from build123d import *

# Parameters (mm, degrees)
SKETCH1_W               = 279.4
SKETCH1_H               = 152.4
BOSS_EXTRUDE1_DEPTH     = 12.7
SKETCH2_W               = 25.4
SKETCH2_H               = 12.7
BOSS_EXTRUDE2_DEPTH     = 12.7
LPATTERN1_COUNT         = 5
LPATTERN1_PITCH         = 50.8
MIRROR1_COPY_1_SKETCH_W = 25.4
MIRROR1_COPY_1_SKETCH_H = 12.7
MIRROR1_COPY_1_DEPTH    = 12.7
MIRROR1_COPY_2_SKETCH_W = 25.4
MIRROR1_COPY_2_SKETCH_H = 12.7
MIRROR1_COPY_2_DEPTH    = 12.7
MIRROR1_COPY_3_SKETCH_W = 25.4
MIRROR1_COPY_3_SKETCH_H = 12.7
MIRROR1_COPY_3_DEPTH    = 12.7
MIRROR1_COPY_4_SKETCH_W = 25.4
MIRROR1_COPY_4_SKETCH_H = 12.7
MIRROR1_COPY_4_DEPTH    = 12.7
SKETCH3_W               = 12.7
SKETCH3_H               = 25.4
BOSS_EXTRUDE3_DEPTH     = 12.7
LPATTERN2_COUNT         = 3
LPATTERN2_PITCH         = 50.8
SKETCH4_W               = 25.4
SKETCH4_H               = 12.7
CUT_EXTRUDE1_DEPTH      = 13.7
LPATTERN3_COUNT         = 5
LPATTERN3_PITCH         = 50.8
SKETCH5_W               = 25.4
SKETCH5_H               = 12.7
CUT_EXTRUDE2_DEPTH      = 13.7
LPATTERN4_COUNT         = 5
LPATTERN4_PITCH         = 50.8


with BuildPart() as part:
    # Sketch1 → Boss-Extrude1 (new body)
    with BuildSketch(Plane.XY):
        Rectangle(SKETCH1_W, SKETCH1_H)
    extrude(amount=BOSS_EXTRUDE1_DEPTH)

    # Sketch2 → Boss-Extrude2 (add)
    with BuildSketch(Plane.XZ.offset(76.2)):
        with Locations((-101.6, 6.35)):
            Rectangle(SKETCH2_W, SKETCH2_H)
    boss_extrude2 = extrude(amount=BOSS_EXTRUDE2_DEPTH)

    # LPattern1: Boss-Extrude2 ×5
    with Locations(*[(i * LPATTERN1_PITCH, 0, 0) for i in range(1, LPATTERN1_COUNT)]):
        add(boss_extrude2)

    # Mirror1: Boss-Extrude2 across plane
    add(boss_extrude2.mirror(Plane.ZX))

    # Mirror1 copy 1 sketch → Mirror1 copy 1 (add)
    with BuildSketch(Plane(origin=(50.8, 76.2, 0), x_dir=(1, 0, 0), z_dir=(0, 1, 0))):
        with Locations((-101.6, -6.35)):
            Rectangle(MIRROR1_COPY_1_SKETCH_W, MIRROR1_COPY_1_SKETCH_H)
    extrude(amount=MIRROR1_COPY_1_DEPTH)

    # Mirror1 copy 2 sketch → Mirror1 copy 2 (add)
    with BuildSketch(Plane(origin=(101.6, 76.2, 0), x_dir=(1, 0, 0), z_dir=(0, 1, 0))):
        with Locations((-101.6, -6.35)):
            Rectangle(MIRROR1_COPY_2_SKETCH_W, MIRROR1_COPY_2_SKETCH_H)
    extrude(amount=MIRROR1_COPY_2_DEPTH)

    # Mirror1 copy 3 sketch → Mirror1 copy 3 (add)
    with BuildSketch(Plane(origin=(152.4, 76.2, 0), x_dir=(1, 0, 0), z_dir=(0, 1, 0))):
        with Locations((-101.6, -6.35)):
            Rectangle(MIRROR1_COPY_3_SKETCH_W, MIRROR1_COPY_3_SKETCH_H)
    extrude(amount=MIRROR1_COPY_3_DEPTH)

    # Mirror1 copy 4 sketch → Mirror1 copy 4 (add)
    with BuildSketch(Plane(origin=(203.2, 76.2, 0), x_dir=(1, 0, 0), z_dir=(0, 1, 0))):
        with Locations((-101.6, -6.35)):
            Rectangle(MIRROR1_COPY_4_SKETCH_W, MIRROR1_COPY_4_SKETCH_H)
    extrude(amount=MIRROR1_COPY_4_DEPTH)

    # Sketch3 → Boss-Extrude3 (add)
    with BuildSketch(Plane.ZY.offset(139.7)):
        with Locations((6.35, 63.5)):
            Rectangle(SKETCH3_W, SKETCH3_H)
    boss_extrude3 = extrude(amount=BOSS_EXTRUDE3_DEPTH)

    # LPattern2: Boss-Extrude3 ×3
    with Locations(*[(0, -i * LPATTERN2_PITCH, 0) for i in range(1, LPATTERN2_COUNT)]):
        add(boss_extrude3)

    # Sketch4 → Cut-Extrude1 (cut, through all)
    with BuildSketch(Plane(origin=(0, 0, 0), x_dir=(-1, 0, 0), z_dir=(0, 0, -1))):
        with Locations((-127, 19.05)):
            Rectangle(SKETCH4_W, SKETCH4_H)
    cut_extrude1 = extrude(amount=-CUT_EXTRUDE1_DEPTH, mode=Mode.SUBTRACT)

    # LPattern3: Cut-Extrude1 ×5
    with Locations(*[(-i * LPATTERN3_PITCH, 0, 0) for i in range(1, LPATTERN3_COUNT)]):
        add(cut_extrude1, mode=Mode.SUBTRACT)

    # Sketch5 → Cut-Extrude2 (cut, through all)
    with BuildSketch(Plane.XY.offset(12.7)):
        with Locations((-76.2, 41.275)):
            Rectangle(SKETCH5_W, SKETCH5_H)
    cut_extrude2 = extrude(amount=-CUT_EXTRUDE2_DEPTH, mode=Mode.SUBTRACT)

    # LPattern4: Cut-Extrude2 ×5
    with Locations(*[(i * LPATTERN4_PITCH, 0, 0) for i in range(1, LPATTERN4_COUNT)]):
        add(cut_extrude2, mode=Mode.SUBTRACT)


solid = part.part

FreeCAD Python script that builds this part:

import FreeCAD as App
import Part
import Sketcher
Q = App.Units.Quantity

doc = App.newDocument("Part")
params = doc.addObject("Spreadsheet::Sheet", "Params")
for row, (alias, value) in enumerate([
    ("sketch1_width", "11 in"),
    ("sketch1_height", "6 in"),
    ("pad1_length", "0.5 in"),
    ("sketch2_width", "1 in"),
    ("sketch2_height", "0.5 in"),
    ("pad2_length", "0.5 in"),
    ("linearpattern_pitch", "2 in"),
    ("sketch3_width", "1 in"),
    ("sketch3_height", "0.5 in"),
    ("pad3_length", "0.5 in"),
    ("sketch4_width", "1 in"),
    ("sketch4_height", "0.5 in"),
    ("pad4_length", "0.5 in"),
    ("sketch5_width", "1 in"),
    ("sketch5_height", "0.5 in"),
    ("pad5_length", "0.5 in"),
    ("sketch6_width", "1 in"),
    ("sketch6_height", "0.5 in"),
    ("pad6_length", "0.5 in"),
    ("sketch7_width", "1 in"),
    ("sketch7_height", "0.5 in"),
    ("pad7_length", "0.5 in"),
    ("linearpattern2_pitch", "2 in"),
    ("sketch8_width", "1 in"),
    ("sketch8_height", "0.5 in"),
    ("linearpattern3_pitch", "2 in"),
    ("sketch9_width", "1 in"),
    ("sketch9_height", "0.5 in"),
    ("linearpattern4_pitch", "2 in"),
], start=1):
    params.set(f"A{row}", alias)
    params.set(f"B{row}", "=" + value)
    params.setAlias(f"B{row}", alias)

body = doc.addObject("PartDesign::Body", "Body")

# Sketch on XY plane
sketch1 = doc.addObject("Sketcher::SketchObject", "Sketch")
body.addObject(sketch1)
sketch1.AttachmentSupport = (doc.XY_Plane, [""])
sketch1.MapMode = "FlatFace"
sketch1.addGeometry(Part.LineSegment(App.Vector(-139.7, 76.2, 0), App.Vector(-139.7, -76.2, 0)), False)
sketch1.addGeometry(Part.LineSegment(App.Vector(-139.7, -76.2, 0), App.Vector(139.7, -76.2, 0)), False)
sketch1.addGeometry(Part.LineSegment(App.Vector(139.7, -76.2, 0), App.Vector(139.7, 76.2, 0)), False)
sketch1.addGeometry(Part.LineSegment(App.Vector(139.7, 76.2, 0), App.Vector(-139.7, 76.2, 0)), False)
sketch1.addConstraint(Sketcher.Constraint("Coincident", 0, 2, 1, 1))
sketch1.addConstraint(Sketcher.Constraint("Coincident", 1, 2, 2, 1))
sketch1.addConstraint(Sketcher.Constraint("Coincident", 2, 2, 3, 1))
sketch1.addConstraint(Sketcher.Constraint("Coincident", 3, 2, 0, 1))
sketch1.addConstraint(Sketcher.Constraint("Vertical", 0))
sketch1.addConstraint(Sketcher.Constraint("Horizontal", 1))
sketch1.addConstraint(Sketcher.Constraint("Vertical", 2))
sketch1.addConstraint(Sketcher.Constraint("Horizontal", 3))
sketch1.addConstraint(Sketcher.Constraint("Symmetric", 0, 2, 2, 2, -1, 1))
sketch1.addConstraint(Sketcher.Constraint("DistanceX", 1, 1, 1, 2, Q("11 in")))
sketch1.addConstraint(Sketcher.Constraint("DistanceY", 0, 2, 0, 1, Q("6 in")))
sketch1.setExpression("Constraints[9]", "Params.sketch1_width")
sketch1.setExpression("Constraints[10]", "Params.sketch1_height")
pad1 = doc.addObject("PartDesign::Pad", "Pad")
body.addObject(pad1)
pad1.Profile = sketch1
pad1.setExpression("Length", "Params.pad1_length")

# Sketch on XZ plane
sketch2 = doc.addObject("Sketcher::SketchObject", "Sketch001")
body.addObject(sketch2)
sketch2.AttachmentSupport = (doc.XZ_Plane, [""])
sketch2.MapMode = "FlatFace"
sketch2.AttachmentOffset = App.Placement(App.Vector(0, 0, 3 * 25.4), App.Rotation())
sketch2.addGeometry(Part.LineSegment(App.Vector(-114.3, 12.7, 0), App.Vector(-114.3, 0, 0)), False)
sketch2.addGeometry(Part.LineSegment(App.Vector(-114.3, 0, 0), App.Vector(-88.9, 0, 0)), False)
sketch2.addGeometry(Part.LineSegment(App.Vector(-88.9, 0, 0), App.Vector(-88.9, 12.7, 0)), False)
sketch2.addGeometry(Part.LineSegment(App.Vector(-88.9, 12.7, 0), App.Vector(-114.3, 12.7, 0)), False)
sketch2.addConstraint(Sketcher.Constraint("Coincident", 0, 2, 1, 1))
sketch2.addConstraint(Sketcher.Constraint("Coincident", 1, 2, 2, 1))
sketch2.addConstraint(Sketcher.Constraint("Coincident", 2, 2, 3, 1))
sketch2.addConstraint(Sketcher.Constraint("Coincident", 3, 2, 0, 1))
sketch2.addConstraint(Sketcher.Constraint("Vertical", 0))
sketch2.addConstraint(Sketcher.Constraint("Horizontal", 1))
sketch2.addConstraint(Sketcher.Constraint("Vertical", 2))
sketch2.addConstraint(Sketcher.Constraint("Horizontal", 3))
sketch2.addConstraint(Sketcher.Constraint("PointOnObject", 0, 2, -1))
sketch2.addConstraint(Sketcher.Constraint("DistanceX", 1, 1, 1, 2, Q("1 in")))
sketch2.addConstraint(Sketcher.Constraint("DistanceY", 0, 2, 0, 1, Q("0.5 in")))
sketch2.addConstraint(Sketcher.Constraint("DistanceX", 0, 2, -1, 1, Q("4.5 in")))
sketch2.setExpression("Constraints[9]", "Params.sketch2_width")
sketch2.setExpression("Constraints[10]", "Params.sketch2_height")
pad2 = doc.addObject("PartDesign::Pad", "Pad001")
body.addObject(pad2)
pad2.Profile = sketch2
pad2.setExpression("Length", "Params.pad2_length")
doc.recompute()

linearpattern = doc.addObject("PartDesign::LinearPattern", "LinearPattern")
body.addObject(linearpattern)
linearpattern.Originals = [pad2]
linearpattern.Direction = (doc.X_Axis, [""])
linearpattern.Mode = "offset"
linearpattern.setExpression("Offset", "Params.linearpattern_pitch")
linearpattern.Occurrences = 5
body.Tip = linearpattern
doc.recompute()

mirrored = doc.addObject("PartDesign::Mirrored", "Mirrored")
body.addObject(mirrored)
mirrored.Originals = [pad2]
mirrored.MirrorPlane = (doc.XZ_Plane, [""])
body.Tip = mirrored

# Sketch on XZ plane
sketch3 = doc.addObject("Sketcher::SketchObject", "Sketch002")
body.addObject(sketch3)
sketch3.AttachmentSupport = (doc.XZ_Plane, [""])
sketch3.MapMode = "FlatFace"
sketch3.AttachmentOffset = App.Placement(App.Vector(0, 0, -3 * 25.4), App.Rotation())
sketch3.addGeometry(Part.LineSegment(App.Vector(-63.5, 0, 0), App.Vector(-63.5, 12.7, 0)), False)
sketch3.addGeometry(Part.LineSegment(App.Vector(-63.5, 12.7, 0), App.Vector(-38.1, 12.7, 0)), False)
sketch3.addGeometry(Part.LineSegment(App.Vector(-38.1, 12.7, 0), App.Vector(-38.1, 0, 0)), False)
sketch3.addGeometry(Part.LineSegment(App.Vector(-38.1, 0, 0), App.Vector(-63.5, 0, 0)), False)
sketch3.addConstraint(Sketcher.Constraint("Coincident", 0, 2, 1, 1))
sketch3.addConstraint(Sketcher.Constraint("Coincident", 1, 2, 2, 1))
sketch3.addConstraint(Sketcher.Constraint("Coincident", 2, 2, 3, 1))
sketch3.addConstraint(Sketcher.Constraint("Coincident", 3, 2, 0, 1))
sketch3.addConstraint(Sketcher.Constraint("Vertical", 0))
sketch3.addConstraint(Sketcher.Constraint("Horizontal", 1))
sketch3.addConstraint(Sketcher.Constraint("Vertical", 2))
sketch3.addConstraint(Sketcher.Constraint("Horizontal", 3))
sketch3.addConstraint(Sketcher.Constraint("PointOnObject", 2, 2, -1))
sketch3.addConstraint(Sketcher.Constraint("DistanceX", 1, 1, 1, 2, Q("1 in")))
sketch3.addConstraint(Sketcher.Constraint("DistanceY", 0, 1, 0, 2, Q("0.5 in")))
sketch3.addConstraint(Sketcher.Constraint("DistanceX", 0, 2, -1, 1, Q("2.5 in")))
sketch3.setExpression("Constraints[9]", "Params.sketch3_width")
sketch3.setExpression("Constraints[10]", "Params.sketch3_height")
pad3 = doc.addObject("PartDesign::Pad", "Pad002")
body.addObject(pad3)
pad3.Profile = sketch3
pad3.setExpression("Length", "Params.pad3_length")
pad3.Reversed = True

# Sketch on XZ plane
sketch4 = doc.addObject("Sketcher::SketchObject", "Sketch003")
body.addObject(sketch4)
sketch4.AttachmentSupport = (doc.XZ_Plane, [""])
sketch4.MapMode = "FlatFace"
sketch4.AttachmentOffset = App.Placement(App.Vector(0, 0, -3 * 25.4), App.Rotation())
sketch4.addGeometry(Part.LineSegment(App.Vector(-12.7, 0, 0), App.Vector(-12.7, 12.7, 0)), False)
sketch4.addGeometry(Part.LineSegment(App.Vector(-12.7, 12.7, 0), App.Vector(12.7, 12.7, 0)), False)
sketch4.addGeometry(Part.LineSegment(App.Vector(12.7, 12.7, 0), App.Vector(12.7, 0, 0)), False)
sketch4.addGeometry(Part.LineSegment(App.Vector(12.7, 0, 0), App.Vector(-12.7, 0, 0)), False)
sketch4.addConstraint(Sketcher.Constraint("Coincident", 0, 2, 1, 1))
sketch4.addConstraint(Sketcher.Constraint("Coincident", 1, 2, 2, 1))
sketch4.addConstraint(Sketcher.Constraint("Coincident", 2, 2, 3, 1))
sketch4.addConstraint(Sketcher.Constraint("Coincident", 3, 2, 0, 1))
sketch4.addConstraint(Sketcher.Constraint("Vertical", 0))
sketch4.addConstraint(Sketcher.Constraint("Horizontal", 1))
sketch4.addConstraint(Sketcher.Constraint("Vertical", 2))
sketch4.addConstraint(Sketcher.Constraint("Horizontal", 3))
sketch4.addConstraint(Sketcher.Constraint("Symmetric", 2, 2, 3, 2, -1, 1))
sketch4.addConstraint(Sketcher.Constraint("DistanceX", 1, 1, 1, 2, Q("1 in")))
sketch4.addConstraint(Sketcher.Constraint("DistanceY", 0, 1, 0, 2, Q("0.5 in")))
sketch4.setExpression("Constraints[9]", "Params.sketch4_width")
sketch4.setExpression("Constraints[10]", "Params.sketch4_height")
pad4 = doc.addObject("PartDesign::Pad", "Pad003")
body.addObject(pad4)
pad4.Profile = sketch4
pad4.setExpression("Length", "Params.pad4_length")
pad4.Reversed = True

# Sketch on XZ plane
sketch5 = doc.addObject("Sketcher::SketchObject", "Sketch004")
body.addObject(sketch5)
sketch5.AttachmentSupport = (doc.XZ_Plane, [""])
sketch5.MapMode = "FlatFace"
sketch5.AttachmentOffset = App.Placement(App.Vector(0, 0, -3 * 25.4), App.Rotation())
sketch5.addGeometry(Part.LineSegment(App.Vector(38.1, 0, 0), App.Vector(38.1, 12.7, 0)), False)
sketch5.addGeometry(Part.LineSegment(App.Vector(38.1, 12.7, 0), App.Vector(63.5, 12.7, 0)), False)
sketch5.addGeometry(Part.LineSegment(App.Vector(63.5, 12.7, 0), App.Vector(63.5, 0, 0)), False)
sketch5.addGeometry(Part.LineSegment(App.Vector(63.5, 0, 0), App.Vector(38.1, 0, 0)), False)
sketch5.addConstraint(Sketcher.Constraint("Coincident", 0, 2, 1, 1))
sketch5.addConstraint(Sketcher.Constraint("Coincident", 1, 2, 2, 1))
sketch5.addConstraint(Sketcher.Constraint("Coincident", 2, 2, 3, 1))
sketch5.addConstraint(Sketcher.Constraint("Coincident", 3, 2, 0, 1))
sketch5.addConstraint(Sketcher.Constraint("Vertical", 0))
sketch5.addConstraint(Sketcher.Constraint("Horizontal", 1))
sketch5.addConstraint(Sketcher.Constraint("Vertical", 2))
sketch5.addConstraint(Sketcher.Constraint("Horizontal", 3))
sketch5.addConstraint(Sketcher.Constraint("PointOnObject", 2, 2, -1))
sketch5.addConstraint(Sketcher.Constraint("DistanceX", 1, 1, 1, 2, Q("1 in")))
sketch5.addConstraint(Sketcher.Constraint("DistanceY", 0, 1, 0, 2, Q("0.5 in")))
sketch5.addConstraint(Sketcher.Constraint("DistanceX", -1, 1, 0, 2, Q("1.5 in")))
sketch5.setExpression("Constraints[9]", "Params.sketch5_width")
sketch5.setExpression("Constraints[10]", "Params.sketch5_height")
pad5 = doc.addObject("PartDesign::Pad", "Pad004")
body.addObject(pad5)
pad5.Profile = sketch5
pad5.setExpression("Length", "Params.pad5_length")
pad5.Reversed = True

# Sketch on XZ plane
sketch6 = doc.addObject("Sketcher::SketchObject", "Sketch005")
body.addObject(sketch6)
sketch6.AttachmentSupport = (doc.XZ_Plane, [""])
sketch6.MapMode = "FlatFace"
sketch6.AttachmentOffset = App.Placement(App.Vector(0, 0, -3 * 25.4), App.Rotation())
sketch6.addGeometry(Part.LineSegment(App.Vector(88.9, 0, 0), App.Vector(88.9, 12.7, 0)), False)
sketch6.addGeometry(Part.LineSegment(App.Vector(88.9, 12.7, 0), App.Vector(114.3, 12.7, 0)), False)
sketch6.addGeometry(Part.LineSegment(App.Vector(114.3, 12.7, 0), App.Vector(114.3, 0, 0)), False)
sketch6.addGeometry(Part.LineSegment(App.Vector(114.3, 0, 0), App.Vector(88.9, 0, 0)), False)
sketch6.addConstraint(Sketcher.Constraint("Coincident", 0, 2, 1, 1))
sketch6.addConstraint(Sketcher.Constraint("Coincident", 1, 2, 2, 1))
sketch6.addConstraint(Sketcher.Constraint("Coincident", 2, 2, 3, 1))
sketch6.addConstraint(Sketcher.Constraint("Coincident", 3, 2, 0, 1))
sketch6.addConstraint(Sketcher.Constraint("Vertical", 0))
sketch6.addConstraint(Sketcher.Constraint("Horizontal", 1))
sketch6.addConstraint(Sketcher.Constraint("Vertical", 2))
sketch6.addConstraint(Sketcher.Constraint("Horizontal", 3))
sketch6.addConstraint(Sketcher.Constraint("PointOnObject", 2, 2, -1))
sketch6.addConstraint(Sketcher.Constraint("DistanceX", 1, 1, 1, 2, Q("1 in")))
sketch6.addConstraint(Sketcher.Constraint("DistanceY", 0, 1, 0, 2, Q("0.5 in")))
sketch6.addConstraint(Sketcher.Constraint("DistanceX", -1, 1, 0, 2, Q("3.5 in")))
sketch6.setExpression("Constraints[9]", "Params.sketch6_width")
sketch6.setExpression("Constraints[10]", "Params.sketch6_height")
pad6 = doc.addObject("PartDesign::Pad", "Pad005")
body.addObject(pad6)
pad6.Profile = sketch6
pad6.setExpression("Length", "Params.pad6_length")
pad6.Reversed = True

# Sketch on YZ plane
sketch7 = doc.addObject("Sketcher::SketchObject", "Sketch006")
body.addObject(sketch7)
sketch7.AttachmentSupport = (doc.YZ_Plane, [""])
sketch7.MapMode = "FlatFace"
sketch7.AttachmentOffset = App.Placement(App.Vector(0, 0, -5.5 * 25.4), App.Rotation())
sketch7.addGeometry(Part.LineSegment(App.Vector(76.2, 0, 0), App.Vector(50.8, 0, 0)), False)
sketch7.addGeometry(Part.LineSegment(App.Vector(50.8, 0, 0), App.Vector(50.8, 12.7, 0)), False)
sketch7.addGeometry(Part.LineSegment(App.Vector(50.8, 12.7, 0), App.Vector(76.2, 12.7, 0)), False)
sketch7.addGeometry(Part.LineSegment(App.Vector(76.2, 12.7, 0), App.Vector(76.2, 0, 0)), False)
sketch7.addConstraint(Sketcher.Constraint("Coincident", 0, 2, 1, 1))
sketch7.addConstraint(Sketcher.Constraint("Coincident", 1, 2, 2, 1))
sketch7.addConstraint(Sketcher.Constraint("Coincident", 2, 2, 3, 1))
sketch7.addConstraint(Sketcher.Constraint("Coincident", 3, 2, 0, 1))
sketch7.addConstraint(Sketcher.Constraint("Horizontal", 0))
sketch7.addConstraint(Sketcher.Constraint("Vertical", 1))
sketch7.addConstraint(Sketcher.Constraint("Horizontal", 2))
sketch7.addConstraint(Sketcher.Constraint("Vertical", 3))
sketch7.addConstraint(Sketcher.Constraint("PointOnObject", 0, 2, -1))
sketch7.addConstraint(Sketcher.Constraint("DistanceX", 0, 2, 0, 1, Q("1 in")))
sketch7.addConstraint(Sketcher.Constraint("DistanceY", 1, 1, 1, 2, Q("0.5 in")))
sketch7.addConstraint(Sketcher.Constraint("DistanceX", -1, 1, 0, 2, Q("2 in")))
sketch7.setExpression("Constraints[9]", "Params.sketch7_width")
sketch7.setExpression("Constraints[10]", "Params.sketch7_height")
pad7 = doc.addObject("PartDesign::Pad", "Pad006")
body.addObject(pad7)
pad7.Profile = sketch7
pad7.setExpression("Length", "Params.pad7_length")
pad7.Reversed = True
doc.recompute()

linearpattern2 = doc.addObject("PartDesign::LinearPattern", "LinearPattern001")
body.addObject(linearpattern2)
linearpattern2.Originals = [pad7]
linearpattern2.Direction = (doc.Y_Axis, [""])
linearpattern2.Mode = "offset"
linearpattern2.setExpression("Offset", "Params.linearpattern2_pitch")
linearpattern2.Occurrences = 3
linearpattern2.Reversed = True
body.Tip = linearpattern2

# Sketch on XY plane
sketch8 = doc.addObject("Sketcher::SketchObject", "Sketch007")
body.addObject(sketch8)
sketch8.AttachmentSupport = (doc.XY_Plane, [""])
sketch8.MapMode = "FlatFace"
sketch8.addGeometry(Part.LineSegment(App.Vector(139.7, 25.4, 0), App.Vector(139.7, 12.7, 0)), False)
sketch8.addGeometry(Part.LineSegment(App.Vector(139.7, 12.7, 0), App.Vector(114.3, 12.7, 0)), False)
sketch8.addGeometry(Part.LineSegment(App.Vector(114.3, 12.7, 0), App.Vector(114.3, 25.4, 0)), False)
sketch8.addGeometry(Part.LineSegment(App.Vector(114.3, 25.4, 0), App.Vector(139.7, 25.4, 0)), False)
sketch8.addConstraint(Sketcher.Constraint("Coincident", 0, 2, 1, 1))
sketch8.addConstraint(Sketcher.Constraint("Coincident", 1, 2, 2, 1))
sketch8.addConstraint(Sketcher.Constraint("Coincident", 2, 2, 3, 1))
sketch8.addConstraint(Sketcher.Constraint("Coincident", 3, 2, 0, 1))
sketch8.addConstraint(Sketcher.Constraint("Vertical", 0))
sketch8.addConstraint(Sketcher.Constraint("Horizontal", 1))
sketch8.addConstraint(Sketcher.Constraint("Vertical", 2))
sketch8.addConstraint(Sketcher.Constraint("Horizontal", 3))
sketch8.addConstraint(Sketcher.Constraint("DistanceX", 1, 2, 1, 1, Q("1 in")))
sketch8.addConstraint(Sketcher.Constraint("DistanceY", 0, 2, 0, 1, Q("0.5 in")))
sketch8.addConstraint(Sketcher.Constraint("DistanceY", -1, 1, 2, 2, Q("1 in")))
sketch8.addConstraint(Sketcher.Constraint("DistanceX", -1, 1, 0, 2, Q("5.5 in")))
sketch8.setExpression("Constraints[8]", "Params.sketch8_width")
sketch8.setExpression("Constraints[9]", "Params.sketch8_height")
pocket1 = doc.addObject("PartDesign::Pocket", "Pocket")
body.addObject(pocket1)
pocket1.Profile = sketch8
pocket1.Type = "ThroughAll"
pocket1.Reversed = True
doc.recompute()

linearpattern3 = doc.addObject("PartDesign::LinearPattern", "LinearPattern002")
body.addObject(linearpattern3)
linearpattern3.Originals = [pocket1]
linearpattern3.Direction = (doc.X_Axis, [""])
linearpattern3.Mode = "offset"
linearpattern3.setExpression("Offset", "Params.linearpattern3_pitch")
linearpattern3.Occurrences = 5
linearpattern3.Reversed = True
body.Tip = linearpattern3

# Sketch on XY plane
sketch9 = doc.addObject("Sketcher::SketchObject", "Sketch008")
body.addObject(sketch9)
sketch9.AttachmentSupport = (doc.XY_Plane, [""])
sketch9.MapMode = "FlatFace"
sketch9.AttachmentOffset = App.Placement(App.Vector(0, 0, 0.5 * 25.4), App.Rotation())
sketch9.addGeometry(Part.LineSegment(App.Vector(-88.9, 47.625, 0), App.Vector(-88.9, 34.925, 0)), False)
sketch9.addGeometry(Part.LineSegment(App.Vector(-88.9, 34.925, 0), App.Vector(-63.5, 34.925, 0)), False)
sketch9.addGeometry(Part.LineSegment(App.Vector(-63.5, 34.925, 0), App.Vector(-63.5, 47.625, 0)), False)
sketch9.addGeometry(Part.LineSegment(App.Vector(-63.5, 47.625, 0), App.Vector(-88.9, 47.625, 0)), False)
sketch9.addConstraint(Sketcher.Constraint("Coincident", 0, 2, 1, 1))
sketch9.addConstraint(Sketcher.Constraint("Coincident", 1, 2, 2, 1))
sketch9.addConstraint(Sketcher.Constraint("Coincident", 2, 2, 3, 1))
sketch9.addConstraint(Sketcher.Constraint("Coincident", 3, 2, 0, 1))
sketch9.addConstraint(Sketcher.Constraint("Vertical", 0))
sketch9.addConstraint(Sketcher.Constraint("Horizontal", 1))
sketch9.addConstraint(Sketcher.Constraint("Vertical", 2))
sketch9.addConstraint(Sketcher.Constraint("Horizontal", 3))
sketch9.addConstraint(Sketcher.Constraint("DistanceX", 1, 1, 1, 2, Q("1 in")))
sketch9.addConstraint(Sketcher.Constraint("DistanceY", 0, 2, 0, 1, Q("0.5 in")))
sketch9.addConstraint(Sketcher.Constraint("DistanceX", 0, 2, -1, 1, Q("3.5 in")))
sketch9.addConstraint(Sketcher.Constraint("DistanceY", -1, 1, 0, 2, Q("1.375 in")))
sketch9.setExpression("Constraints[8]", "Params.sketch9_width")
sketch9.setExpression("Constraints[9]", "Params.sketch9_height")
pocket2 = doc.addObject("PartDesign::Pocket", "Pocket001")
body.addObject(pocket2)
pocket2.Profile = sketch9
pocket2.Type = "ThroughAll"
doc.recompute()

linearpattern4 = doc.addObject("PartDesign::LinearPattern", "LinearPattern003")
body.addObject(linearpattern4)
linearpattern4.Originals = [pocket2]
linearpattern4.Direction = (doc.X_Axis, [""])
linearpattern4.Mode = "offset"
linearpattern4.setExpression("Offset", "Params.linearpattern4_pitch")
linearpattern4.Occurrences = 5
body.Tip = linearpattern4

doc.recompute()
